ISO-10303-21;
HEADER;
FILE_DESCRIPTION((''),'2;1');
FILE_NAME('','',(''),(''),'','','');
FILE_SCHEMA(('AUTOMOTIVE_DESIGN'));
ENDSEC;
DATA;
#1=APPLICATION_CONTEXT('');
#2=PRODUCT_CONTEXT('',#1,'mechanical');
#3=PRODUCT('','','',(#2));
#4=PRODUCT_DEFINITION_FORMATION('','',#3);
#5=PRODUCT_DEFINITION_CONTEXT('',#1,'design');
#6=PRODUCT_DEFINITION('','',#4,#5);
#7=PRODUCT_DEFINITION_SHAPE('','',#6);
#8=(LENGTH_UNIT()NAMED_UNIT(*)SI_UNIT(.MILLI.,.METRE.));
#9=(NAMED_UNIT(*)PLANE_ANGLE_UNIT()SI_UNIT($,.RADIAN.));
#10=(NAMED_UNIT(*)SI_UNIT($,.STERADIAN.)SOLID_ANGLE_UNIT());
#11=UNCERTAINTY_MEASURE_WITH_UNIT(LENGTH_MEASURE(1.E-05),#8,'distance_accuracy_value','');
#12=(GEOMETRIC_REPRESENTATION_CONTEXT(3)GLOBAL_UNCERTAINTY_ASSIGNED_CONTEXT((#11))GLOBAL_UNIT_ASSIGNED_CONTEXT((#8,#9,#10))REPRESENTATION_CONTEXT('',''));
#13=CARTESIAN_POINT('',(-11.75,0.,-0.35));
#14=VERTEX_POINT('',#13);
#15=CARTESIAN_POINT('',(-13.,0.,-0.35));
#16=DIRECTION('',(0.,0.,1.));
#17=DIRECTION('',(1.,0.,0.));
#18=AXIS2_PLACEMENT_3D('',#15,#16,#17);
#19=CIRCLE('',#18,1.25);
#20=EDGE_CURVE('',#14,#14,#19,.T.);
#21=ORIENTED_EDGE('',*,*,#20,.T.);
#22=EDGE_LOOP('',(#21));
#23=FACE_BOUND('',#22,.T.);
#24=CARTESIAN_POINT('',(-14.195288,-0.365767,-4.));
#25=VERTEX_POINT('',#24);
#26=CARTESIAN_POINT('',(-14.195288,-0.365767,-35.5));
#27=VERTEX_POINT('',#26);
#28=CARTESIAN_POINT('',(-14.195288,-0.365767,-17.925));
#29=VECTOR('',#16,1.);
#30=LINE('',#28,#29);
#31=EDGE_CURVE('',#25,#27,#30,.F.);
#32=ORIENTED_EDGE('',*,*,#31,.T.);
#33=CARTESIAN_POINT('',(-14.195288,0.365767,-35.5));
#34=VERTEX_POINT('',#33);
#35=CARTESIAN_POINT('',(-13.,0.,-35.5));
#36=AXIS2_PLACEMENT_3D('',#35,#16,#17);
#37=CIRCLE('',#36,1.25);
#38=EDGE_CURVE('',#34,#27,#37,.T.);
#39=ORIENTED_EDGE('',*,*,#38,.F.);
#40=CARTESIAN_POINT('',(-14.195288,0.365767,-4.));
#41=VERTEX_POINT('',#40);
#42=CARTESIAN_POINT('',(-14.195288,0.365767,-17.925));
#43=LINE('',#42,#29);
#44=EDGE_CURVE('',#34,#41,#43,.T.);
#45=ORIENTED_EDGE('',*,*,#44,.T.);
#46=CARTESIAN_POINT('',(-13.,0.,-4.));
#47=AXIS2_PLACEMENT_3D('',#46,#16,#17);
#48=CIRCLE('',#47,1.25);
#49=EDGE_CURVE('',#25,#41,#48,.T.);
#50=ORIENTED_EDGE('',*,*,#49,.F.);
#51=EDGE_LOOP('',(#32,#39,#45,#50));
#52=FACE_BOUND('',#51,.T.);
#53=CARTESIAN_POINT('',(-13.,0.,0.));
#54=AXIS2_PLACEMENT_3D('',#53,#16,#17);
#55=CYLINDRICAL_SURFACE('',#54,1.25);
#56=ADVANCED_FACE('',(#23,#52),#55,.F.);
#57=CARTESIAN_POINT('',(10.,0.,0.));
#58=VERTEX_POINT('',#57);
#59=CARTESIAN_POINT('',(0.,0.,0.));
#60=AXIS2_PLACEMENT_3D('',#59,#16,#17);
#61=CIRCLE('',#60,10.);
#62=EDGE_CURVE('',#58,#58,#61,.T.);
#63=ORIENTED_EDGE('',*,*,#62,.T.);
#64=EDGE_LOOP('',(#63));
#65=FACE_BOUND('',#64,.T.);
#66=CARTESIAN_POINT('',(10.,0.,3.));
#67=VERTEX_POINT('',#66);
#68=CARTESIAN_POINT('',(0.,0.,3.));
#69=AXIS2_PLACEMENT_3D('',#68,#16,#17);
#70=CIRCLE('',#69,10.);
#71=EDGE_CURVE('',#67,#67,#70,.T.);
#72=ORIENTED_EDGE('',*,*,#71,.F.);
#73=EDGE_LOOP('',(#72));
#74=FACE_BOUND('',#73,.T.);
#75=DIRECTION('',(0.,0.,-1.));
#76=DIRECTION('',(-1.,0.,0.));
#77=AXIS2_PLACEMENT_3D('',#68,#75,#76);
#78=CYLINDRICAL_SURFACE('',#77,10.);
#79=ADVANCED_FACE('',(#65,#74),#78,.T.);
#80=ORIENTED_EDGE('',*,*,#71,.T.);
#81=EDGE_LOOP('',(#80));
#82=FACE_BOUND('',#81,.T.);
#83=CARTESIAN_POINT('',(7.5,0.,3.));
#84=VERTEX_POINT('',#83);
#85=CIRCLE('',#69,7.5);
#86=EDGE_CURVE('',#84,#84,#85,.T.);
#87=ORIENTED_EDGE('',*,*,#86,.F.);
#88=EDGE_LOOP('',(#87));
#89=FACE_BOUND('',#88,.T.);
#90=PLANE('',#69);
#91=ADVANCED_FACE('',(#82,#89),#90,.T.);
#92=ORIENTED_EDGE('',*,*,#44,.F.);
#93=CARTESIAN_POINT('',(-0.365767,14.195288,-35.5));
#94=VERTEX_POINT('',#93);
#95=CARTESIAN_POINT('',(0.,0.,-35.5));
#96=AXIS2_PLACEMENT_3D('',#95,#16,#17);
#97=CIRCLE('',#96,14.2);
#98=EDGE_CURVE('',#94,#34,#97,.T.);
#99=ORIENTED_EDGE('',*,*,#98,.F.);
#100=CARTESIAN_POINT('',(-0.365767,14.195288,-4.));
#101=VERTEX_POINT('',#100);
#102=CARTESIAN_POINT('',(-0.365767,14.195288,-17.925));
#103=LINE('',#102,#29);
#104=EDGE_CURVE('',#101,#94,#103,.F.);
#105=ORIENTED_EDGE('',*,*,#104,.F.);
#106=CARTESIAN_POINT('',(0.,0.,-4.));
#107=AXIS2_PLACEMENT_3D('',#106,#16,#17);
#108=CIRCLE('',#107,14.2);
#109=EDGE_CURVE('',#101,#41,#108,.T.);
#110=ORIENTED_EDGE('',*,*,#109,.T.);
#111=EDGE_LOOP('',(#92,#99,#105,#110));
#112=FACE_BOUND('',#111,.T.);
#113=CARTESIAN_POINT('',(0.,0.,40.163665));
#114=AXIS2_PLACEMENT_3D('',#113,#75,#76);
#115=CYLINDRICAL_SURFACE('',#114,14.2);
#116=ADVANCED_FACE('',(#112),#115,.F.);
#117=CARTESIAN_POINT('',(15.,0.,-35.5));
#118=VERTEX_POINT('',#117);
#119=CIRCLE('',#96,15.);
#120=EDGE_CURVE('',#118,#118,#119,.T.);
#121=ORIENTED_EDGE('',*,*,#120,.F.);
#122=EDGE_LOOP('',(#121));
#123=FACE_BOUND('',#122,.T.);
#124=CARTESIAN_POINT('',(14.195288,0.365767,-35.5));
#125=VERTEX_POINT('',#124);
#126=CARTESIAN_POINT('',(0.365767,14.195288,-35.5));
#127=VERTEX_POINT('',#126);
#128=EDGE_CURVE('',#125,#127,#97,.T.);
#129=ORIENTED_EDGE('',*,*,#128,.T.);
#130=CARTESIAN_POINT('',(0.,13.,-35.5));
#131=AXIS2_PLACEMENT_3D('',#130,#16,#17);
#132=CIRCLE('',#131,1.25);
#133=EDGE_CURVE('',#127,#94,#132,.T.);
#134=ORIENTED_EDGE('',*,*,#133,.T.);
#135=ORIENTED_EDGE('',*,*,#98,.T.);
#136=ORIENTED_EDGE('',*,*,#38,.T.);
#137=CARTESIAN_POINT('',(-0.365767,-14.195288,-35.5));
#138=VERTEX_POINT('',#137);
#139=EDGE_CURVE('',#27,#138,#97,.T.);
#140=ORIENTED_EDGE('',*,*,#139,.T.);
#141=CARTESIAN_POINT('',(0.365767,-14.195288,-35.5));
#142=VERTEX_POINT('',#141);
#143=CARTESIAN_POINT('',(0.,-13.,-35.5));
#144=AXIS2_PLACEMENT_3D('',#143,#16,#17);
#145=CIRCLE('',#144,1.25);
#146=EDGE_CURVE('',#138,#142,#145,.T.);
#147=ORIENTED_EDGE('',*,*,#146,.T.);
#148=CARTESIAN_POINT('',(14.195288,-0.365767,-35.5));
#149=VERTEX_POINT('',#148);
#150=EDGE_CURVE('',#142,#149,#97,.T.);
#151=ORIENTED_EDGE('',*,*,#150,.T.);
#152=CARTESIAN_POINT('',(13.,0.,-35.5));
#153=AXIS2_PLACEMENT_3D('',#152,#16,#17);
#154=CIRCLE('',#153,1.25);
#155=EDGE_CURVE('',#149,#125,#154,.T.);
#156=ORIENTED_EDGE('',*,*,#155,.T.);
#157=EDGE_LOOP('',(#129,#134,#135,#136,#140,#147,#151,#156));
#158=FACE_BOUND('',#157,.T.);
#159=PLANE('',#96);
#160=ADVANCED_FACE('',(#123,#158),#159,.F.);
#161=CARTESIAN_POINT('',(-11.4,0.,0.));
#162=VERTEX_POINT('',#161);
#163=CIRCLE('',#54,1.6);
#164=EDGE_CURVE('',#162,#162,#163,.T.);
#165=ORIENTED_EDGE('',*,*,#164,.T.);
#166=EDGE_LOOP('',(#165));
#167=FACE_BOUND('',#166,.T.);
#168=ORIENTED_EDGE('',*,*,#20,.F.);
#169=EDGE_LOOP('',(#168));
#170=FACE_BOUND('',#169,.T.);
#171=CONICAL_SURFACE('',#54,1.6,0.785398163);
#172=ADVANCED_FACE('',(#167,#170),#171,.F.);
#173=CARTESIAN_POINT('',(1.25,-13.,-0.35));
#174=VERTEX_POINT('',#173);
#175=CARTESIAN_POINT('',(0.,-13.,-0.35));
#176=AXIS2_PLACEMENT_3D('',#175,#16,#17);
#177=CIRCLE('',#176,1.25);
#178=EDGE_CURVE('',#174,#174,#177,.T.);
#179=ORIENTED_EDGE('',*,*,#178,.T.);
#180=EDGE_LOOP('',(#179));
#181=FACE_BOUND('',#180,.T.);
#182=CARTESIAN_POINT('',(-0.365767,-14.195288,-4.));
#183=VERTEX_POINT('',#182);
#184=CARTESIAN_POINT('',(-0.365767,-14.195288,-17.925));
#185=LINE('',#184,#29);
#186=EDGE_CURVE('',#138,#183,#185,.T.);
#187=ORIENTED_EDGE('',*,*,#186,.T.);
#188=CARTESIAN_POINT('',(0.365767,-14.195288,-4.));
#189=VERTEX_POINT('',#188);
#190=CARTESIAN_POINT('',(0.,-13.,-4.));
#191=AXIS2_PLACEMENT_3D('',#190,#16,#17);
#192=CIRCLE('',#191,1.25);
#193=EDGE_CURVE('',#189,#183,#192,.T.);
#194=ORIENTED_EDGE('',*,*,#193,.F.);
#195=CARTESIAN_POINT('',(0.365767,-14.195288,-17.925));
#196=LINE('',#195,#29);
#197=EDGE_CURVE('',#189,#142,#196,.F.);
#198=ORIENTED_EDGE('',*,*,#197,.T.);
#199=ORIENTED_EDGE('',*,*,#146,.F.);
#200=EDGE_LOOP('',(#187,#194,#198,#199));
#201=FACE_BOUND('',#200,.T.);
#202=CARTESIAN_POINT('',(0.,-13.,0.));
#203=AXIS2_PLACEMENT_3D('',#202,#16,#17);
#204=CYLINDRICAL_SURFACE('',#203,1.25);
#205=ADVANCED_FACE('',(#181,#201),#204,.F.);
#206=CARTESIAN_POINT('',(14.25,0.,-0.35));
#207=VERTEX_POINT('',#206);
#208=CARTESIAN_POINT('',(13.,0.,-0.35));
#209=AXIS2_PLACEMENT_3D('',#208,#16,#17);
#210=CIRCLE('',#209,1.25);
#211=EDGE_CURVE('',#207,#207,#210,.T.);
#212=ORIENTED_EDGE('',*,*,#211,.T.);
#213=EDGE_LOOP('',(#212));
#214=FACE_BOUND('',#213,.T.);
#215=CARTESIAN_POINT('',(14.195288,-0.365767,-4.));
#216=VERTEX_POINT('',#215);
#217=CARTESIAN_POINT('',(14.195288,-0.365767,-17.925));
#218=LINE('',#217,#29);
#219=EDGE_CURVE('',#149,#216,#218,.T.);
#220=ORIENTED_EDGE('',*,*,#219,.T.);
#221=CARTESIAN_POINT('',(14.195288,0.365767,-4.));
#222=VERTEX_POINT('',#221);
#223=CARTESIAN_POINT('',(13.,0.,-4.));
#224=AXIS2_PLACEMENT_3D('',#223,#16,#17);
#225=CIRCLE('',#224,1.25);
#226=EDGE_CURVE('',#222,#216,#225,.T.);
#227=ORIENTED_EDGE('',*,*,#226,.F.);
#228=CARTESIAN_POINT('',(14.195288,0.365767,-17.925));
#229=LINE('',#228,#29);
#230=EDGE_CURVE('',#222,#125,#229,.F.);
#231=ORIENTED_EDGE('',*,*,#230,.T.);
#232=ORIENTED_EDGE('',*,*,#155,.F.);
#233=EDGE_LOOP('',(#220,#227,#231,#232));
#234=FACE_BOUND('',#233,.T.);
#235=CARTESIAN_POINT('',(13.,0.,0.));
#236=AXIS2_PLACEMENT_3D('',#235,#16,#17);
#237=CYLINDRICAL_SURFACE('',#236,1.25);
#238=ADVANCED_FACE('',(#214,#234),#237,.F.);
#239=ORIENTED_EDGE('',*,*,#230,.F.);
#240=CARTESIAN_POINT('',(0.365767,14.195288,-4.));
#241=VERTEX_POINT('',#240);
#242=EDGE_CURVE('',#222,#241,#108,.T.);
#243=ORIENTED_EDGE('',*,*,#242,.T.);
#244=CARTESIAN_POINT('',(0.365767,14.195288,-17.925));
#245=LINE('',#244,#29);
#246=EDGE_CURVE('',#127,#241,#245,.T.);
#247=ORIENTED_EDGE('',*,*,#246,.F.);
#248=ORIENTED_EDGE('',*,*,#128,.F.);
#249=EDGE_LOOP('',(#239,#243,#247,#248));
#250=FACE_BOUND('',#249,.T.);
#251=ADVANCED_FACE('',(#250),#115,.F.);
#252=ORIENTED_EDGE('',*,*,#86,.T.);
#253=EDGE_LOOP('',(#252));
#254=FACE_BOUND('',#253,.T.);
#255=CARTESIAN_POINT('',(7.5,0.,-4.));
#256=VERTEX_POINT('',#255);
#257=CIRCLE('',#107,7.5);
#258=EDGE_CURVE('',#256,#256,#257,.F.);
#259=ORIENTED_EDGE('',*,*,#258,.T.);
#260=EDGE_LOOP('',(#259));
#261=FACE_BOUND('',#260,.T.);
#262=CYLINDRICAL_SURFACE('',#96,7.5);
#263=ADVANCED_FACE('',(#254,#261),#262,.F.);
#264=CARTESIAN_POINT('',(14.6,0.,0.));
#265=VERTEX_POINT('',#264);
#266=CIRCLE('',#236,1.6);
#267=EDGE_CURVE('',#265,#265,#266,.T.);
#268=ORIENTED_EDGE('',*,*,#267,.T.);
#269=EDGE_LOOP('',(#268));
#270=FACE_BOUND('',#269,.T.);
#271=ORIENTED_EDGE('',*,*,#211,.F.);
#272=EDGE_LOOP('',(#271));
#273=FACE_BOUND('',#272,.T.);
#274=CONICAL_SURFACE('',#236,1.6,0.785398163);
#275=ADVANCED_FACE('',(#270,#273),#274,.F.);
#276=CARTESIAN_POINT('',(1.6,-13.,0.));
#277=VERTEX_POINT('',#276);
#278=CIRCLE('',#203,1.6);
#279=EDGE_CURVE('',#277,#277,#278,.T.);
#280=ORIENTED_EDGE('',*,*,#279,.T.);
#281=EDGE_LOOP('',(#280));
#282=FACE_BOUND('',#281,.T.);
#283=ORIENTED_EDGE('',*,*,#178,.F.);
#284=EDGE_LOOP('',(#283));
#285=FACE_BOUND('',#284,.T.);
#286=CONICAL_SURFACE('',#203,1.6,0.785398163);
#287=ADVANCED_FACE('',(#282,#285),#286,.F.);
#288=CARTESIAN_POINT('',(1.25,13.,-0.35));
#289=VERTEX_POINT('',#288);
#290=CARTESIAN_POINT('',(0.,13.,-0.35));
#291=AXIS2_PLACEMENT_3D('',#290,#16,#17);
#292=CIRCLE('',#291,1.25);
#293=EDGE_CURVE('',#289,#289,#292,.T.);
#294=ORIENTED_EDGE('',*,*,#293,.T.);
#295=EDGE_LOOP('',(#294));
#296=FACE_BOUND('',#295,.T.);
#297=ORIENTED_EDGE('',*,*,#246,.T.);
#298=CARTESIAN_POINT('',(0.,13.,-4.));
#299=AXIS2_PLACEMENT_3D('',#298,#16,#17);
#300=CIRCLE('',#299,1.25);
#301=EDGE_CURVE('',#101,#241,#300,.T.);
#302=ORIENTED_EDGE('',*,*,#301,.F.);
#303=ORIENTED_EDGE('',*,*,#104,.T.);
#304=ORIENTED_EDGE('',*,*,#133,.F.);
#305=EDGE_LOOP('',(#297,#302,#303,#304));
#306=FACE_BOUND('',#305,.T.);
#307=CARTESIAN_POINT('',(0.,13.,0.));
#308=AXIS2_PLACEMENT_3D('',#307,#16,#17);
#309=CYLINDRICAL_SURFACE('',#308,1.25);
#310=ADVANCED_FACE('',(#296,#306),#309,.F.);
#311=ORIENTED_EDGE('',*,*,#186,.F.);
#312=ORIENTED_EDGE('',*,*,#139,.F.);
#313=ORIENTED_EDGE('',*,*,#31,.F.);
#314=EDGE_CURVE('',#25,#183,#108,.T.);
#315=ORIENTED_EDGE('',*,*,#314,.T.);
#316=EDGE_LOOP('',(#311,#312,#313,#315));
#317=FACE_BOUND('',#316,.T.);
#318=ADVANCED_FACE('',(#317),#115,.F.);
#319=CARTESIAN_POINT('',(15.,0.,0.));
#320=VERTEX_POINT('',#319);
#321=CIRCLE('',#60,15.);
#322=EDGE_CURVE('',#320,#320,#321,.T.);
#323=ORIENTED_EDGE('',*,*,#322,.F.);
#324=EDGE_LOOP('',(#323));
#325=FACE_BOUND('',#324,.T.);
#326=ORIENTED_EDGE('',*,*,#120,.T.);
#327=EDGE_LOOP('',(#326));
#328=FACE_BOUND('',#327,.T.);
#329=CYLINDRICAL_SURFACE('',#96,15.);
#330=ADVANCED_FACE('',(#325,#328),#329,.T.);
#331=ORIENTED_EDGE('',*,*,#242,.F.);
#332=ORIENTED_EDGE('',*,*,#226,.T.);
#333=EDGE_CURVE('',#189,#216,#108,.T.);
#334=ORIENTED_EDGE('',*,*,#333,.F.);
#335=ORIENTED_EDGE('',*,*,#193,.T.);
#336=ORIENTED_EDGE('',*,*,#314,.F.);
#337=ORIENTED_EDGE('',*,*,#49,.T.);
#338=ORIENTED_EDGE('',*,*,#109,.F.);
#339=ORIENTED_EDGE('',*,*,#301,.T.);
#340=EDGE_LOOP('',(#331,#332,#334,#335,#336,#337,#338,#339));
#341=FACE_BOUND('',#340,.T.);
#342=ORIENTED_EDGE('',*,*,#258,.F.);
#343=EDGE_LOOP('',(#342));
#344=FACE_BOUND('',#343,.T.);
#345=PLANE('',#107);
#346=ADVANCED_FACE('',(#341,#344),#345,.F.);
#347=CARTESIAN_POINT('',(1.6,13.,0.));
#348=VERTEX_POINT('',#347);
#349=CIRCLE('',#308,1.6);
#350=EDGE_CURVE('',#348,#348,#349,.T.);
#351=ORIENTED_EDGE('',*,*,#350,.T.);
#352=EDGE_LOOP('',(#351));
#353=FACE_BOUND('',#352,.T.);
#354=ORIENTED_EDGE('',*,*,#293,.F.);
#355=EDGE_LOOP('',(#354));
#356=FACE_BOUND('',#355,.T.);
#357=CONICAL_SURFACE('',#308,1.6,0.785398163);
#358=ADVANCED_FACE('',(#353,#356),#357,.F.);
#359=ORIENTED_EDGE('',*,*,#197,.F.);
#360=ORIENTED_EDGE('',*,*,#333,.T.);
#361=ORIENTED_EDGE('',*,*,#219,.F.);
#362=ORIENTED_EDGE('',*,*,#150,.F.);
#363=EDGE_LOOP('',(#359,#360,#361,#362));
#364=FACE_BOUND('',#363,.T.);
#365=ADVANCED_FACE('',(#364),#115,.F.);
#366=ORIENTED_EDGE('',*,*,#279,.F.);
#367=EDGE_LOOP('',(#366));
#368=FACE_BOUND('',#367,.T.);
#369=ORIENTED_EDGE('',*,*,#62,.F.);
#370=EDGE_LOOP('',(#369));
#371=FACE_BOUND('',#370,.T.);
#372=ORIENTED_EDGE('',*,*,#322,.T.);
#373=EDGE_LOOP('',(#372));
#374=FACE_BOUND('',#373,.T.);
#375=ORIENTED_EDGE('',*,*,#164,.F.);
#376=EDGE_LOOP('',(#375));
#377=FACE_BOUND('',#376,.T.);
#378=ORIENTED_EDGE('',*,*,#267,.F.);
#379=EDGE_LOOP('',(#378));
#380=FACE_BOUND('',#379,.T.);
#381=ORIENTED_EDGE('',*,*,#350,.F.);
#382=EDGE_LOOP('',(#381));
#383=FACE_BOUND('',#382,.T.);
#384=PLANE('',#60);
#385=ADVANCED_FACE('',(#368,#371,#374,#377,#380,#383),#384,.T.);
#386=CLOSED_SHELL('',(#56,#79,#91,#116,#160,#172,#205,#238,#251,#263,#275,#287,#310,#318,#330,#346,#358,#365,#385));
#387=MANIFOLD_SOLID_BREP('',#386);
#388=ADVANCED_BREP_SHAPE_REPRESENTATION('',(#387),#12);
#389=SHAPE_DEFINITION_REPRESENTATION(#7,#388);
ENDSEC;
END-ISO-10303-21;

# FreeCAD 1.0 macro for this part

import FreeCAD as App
import Part
import Sketcher
from FreeCAD import Vector

doc = App.newDocument("Part")
body = doc.addObject("PartDesign::Body", "Body")

sketch1 = doc.addObject("Sketcher::SketchObject", "Sketch")
body.addObject(sketch1)
sketch1.AttachmentSupport = (doc.XY_Plane, [""])
sketch1.MapMode = "FlatFace"
sketch1.addGeometry(Part.Circle(Vector(0, 0, 0), Vector(0, 0, 1), 15), False)
sketch1.addConstraint(Sketcher.Constraint("Coincident", 0, 3, -1, 1))
sketch1.addConstraint(Sketcher.Constraint("Diameter", 0, 30.0))
pad1 = doc.addObject("PartDesign::Pad", "Pad")
body.addObject(pad1)
pad1.Profile = sketch1
pad1.Length = 35.5
pad1.Reversed = True

sketch2 = doc.addObject("Sketcher::SketchObject", "Sketch001")
body.addObject(sketch2)
sketch2.AttachmentSupport = (doc.XY_Plane, [""])
sketch2.MapMode = "FlatFace"
sketch2.AttachmentOffset = App.Placement(Vector(0, 0, -35.5), App.Rotation())
sketch2.addGeometry(Part.Circle(Vector(0, 0, 0), Vector(0, 0, 1), 14), False)
sketch2.addConstraint(Sketcher.Constraint("Coincident", 0, 3, -1, 1))
sketch2.addConstraint(Sketcher.Constraint("Diameter", 0, 28.4))
pocket1 = doc.addObject("PartDesign::Pocket", "Pocket")
body.addObject(pocket1)
pocket1.Profile = sketch2
pocket1.Length = 31.5
pocket1.Reversed = True

sketch3 = doc.addObject("Sketcher::SketchObject", "Sketch002")
body.addObject(sketch3)
sketch3.AttachmentSupport = (doc.XY_Plane, [""])
sketch3.MapMode = "FlatFace"
sketch3.addGeometry(Part.Circle(Vector(0, 0, 0), Vector(0, 0, 1), 8), False)
sketch3.addConstraint(Sketcher.Constraint("Coincident", 0, 3, -1, 1))
sketch3.addConstraint(Sketcher.Constraint("Diameter", 0, 15.0))
pocket2 = doc.addObject("PartDesign::Pocket", "Pocket001")
body.addObject(pocket2)
pocket2.Profile = sketch3
pocket2.Type = "ThroughAll"

sketch4 = doc.addObject("Sketcher::SketchObject", "Sketch003")
body.addObject(sketch4)
sketch4.AttachmentSupport = (doc.XY_Plane, [""])
sketch4.MapMode = "FlatFace"
sketch4.addGeometry(Part.Circle(Vector(13, 0, 0), Vector(0, 0, 1), 1.2), False)
sketch4.addConstraint(Sketcher.Constraint("PointOnObject", 0, 3, -1))
sketch4.addConstraint(Sketcher.Constraint("Diameter", 0, 2.5))
sketch4.addConstraint(Sketcher.Constraint("DistanceX", -1, 1, 0, 3, 13.0))
doc.recompute()
hole = doc.addObject("PartDesign::Hole", "Hole")
body.addObject(hole)
hole.Profile = sketch4
hole.ThreadType = "None"
hole.Diameter = 2.5
hole.DepthType = "ThroughAll"
hole.HoleCutType = "Countersink"
hole.HoleCutDiameter = 3.2
hole.HoleCutCountersinkAngle = 90
doc.recompute()

polarpattern = doc.addObject("PartDesign::PolarPattern", "PolarPattern")
body.addObject(polarpattern)
polarpattern.Originals = [hole]
polarpattern.Axis = (doc.Z_Axis, [""])
polarpattern.Angle = 360
polarpattern.Occurrences = 4
body.Tip = polarpattern

sketch5 = doc.addObject("Sketcher::SketchObject", "Sketch004")
body.addObject(sketch5)
sketch5.AttachmentSupport = (doc.XY_Plane, [""])
sketch5.MapMode = "FlatFace"
sketch5.AttachmentOffset = App.Placement(Vector(0, 0, 3), App.Rotation())
sketch5.addGeometry(Part.Circle(Vector(0, 0, 0), Vector(0, 0, 1), 10), False)
sketch5.addGeometry(Part.Circle(Vector(0, 0, 0), Vector(0, 0, 1), 8), False)
sketch5.addConstraint(Sketcher.Constraint("Coincident", 0, 3, -1, 1))
sketch5.addConstraint(Sketcher.Constraint("Coincident", 1, 3, -1, 1))
sketch5.addConstraint(Sketcher.Constraint("Diameter", 0, 20.0))
sketch5.addConstraint(Sketcher.Constraint("Diameter", 1, 15.0))
pad2 = doc.addObject("PartDesign::Pad", "Pad001")
body.addObject(pad2)
pad2.Profile = sketch5
pad2.Length = 3
pad2.Reversed = True

doc.recompute()
